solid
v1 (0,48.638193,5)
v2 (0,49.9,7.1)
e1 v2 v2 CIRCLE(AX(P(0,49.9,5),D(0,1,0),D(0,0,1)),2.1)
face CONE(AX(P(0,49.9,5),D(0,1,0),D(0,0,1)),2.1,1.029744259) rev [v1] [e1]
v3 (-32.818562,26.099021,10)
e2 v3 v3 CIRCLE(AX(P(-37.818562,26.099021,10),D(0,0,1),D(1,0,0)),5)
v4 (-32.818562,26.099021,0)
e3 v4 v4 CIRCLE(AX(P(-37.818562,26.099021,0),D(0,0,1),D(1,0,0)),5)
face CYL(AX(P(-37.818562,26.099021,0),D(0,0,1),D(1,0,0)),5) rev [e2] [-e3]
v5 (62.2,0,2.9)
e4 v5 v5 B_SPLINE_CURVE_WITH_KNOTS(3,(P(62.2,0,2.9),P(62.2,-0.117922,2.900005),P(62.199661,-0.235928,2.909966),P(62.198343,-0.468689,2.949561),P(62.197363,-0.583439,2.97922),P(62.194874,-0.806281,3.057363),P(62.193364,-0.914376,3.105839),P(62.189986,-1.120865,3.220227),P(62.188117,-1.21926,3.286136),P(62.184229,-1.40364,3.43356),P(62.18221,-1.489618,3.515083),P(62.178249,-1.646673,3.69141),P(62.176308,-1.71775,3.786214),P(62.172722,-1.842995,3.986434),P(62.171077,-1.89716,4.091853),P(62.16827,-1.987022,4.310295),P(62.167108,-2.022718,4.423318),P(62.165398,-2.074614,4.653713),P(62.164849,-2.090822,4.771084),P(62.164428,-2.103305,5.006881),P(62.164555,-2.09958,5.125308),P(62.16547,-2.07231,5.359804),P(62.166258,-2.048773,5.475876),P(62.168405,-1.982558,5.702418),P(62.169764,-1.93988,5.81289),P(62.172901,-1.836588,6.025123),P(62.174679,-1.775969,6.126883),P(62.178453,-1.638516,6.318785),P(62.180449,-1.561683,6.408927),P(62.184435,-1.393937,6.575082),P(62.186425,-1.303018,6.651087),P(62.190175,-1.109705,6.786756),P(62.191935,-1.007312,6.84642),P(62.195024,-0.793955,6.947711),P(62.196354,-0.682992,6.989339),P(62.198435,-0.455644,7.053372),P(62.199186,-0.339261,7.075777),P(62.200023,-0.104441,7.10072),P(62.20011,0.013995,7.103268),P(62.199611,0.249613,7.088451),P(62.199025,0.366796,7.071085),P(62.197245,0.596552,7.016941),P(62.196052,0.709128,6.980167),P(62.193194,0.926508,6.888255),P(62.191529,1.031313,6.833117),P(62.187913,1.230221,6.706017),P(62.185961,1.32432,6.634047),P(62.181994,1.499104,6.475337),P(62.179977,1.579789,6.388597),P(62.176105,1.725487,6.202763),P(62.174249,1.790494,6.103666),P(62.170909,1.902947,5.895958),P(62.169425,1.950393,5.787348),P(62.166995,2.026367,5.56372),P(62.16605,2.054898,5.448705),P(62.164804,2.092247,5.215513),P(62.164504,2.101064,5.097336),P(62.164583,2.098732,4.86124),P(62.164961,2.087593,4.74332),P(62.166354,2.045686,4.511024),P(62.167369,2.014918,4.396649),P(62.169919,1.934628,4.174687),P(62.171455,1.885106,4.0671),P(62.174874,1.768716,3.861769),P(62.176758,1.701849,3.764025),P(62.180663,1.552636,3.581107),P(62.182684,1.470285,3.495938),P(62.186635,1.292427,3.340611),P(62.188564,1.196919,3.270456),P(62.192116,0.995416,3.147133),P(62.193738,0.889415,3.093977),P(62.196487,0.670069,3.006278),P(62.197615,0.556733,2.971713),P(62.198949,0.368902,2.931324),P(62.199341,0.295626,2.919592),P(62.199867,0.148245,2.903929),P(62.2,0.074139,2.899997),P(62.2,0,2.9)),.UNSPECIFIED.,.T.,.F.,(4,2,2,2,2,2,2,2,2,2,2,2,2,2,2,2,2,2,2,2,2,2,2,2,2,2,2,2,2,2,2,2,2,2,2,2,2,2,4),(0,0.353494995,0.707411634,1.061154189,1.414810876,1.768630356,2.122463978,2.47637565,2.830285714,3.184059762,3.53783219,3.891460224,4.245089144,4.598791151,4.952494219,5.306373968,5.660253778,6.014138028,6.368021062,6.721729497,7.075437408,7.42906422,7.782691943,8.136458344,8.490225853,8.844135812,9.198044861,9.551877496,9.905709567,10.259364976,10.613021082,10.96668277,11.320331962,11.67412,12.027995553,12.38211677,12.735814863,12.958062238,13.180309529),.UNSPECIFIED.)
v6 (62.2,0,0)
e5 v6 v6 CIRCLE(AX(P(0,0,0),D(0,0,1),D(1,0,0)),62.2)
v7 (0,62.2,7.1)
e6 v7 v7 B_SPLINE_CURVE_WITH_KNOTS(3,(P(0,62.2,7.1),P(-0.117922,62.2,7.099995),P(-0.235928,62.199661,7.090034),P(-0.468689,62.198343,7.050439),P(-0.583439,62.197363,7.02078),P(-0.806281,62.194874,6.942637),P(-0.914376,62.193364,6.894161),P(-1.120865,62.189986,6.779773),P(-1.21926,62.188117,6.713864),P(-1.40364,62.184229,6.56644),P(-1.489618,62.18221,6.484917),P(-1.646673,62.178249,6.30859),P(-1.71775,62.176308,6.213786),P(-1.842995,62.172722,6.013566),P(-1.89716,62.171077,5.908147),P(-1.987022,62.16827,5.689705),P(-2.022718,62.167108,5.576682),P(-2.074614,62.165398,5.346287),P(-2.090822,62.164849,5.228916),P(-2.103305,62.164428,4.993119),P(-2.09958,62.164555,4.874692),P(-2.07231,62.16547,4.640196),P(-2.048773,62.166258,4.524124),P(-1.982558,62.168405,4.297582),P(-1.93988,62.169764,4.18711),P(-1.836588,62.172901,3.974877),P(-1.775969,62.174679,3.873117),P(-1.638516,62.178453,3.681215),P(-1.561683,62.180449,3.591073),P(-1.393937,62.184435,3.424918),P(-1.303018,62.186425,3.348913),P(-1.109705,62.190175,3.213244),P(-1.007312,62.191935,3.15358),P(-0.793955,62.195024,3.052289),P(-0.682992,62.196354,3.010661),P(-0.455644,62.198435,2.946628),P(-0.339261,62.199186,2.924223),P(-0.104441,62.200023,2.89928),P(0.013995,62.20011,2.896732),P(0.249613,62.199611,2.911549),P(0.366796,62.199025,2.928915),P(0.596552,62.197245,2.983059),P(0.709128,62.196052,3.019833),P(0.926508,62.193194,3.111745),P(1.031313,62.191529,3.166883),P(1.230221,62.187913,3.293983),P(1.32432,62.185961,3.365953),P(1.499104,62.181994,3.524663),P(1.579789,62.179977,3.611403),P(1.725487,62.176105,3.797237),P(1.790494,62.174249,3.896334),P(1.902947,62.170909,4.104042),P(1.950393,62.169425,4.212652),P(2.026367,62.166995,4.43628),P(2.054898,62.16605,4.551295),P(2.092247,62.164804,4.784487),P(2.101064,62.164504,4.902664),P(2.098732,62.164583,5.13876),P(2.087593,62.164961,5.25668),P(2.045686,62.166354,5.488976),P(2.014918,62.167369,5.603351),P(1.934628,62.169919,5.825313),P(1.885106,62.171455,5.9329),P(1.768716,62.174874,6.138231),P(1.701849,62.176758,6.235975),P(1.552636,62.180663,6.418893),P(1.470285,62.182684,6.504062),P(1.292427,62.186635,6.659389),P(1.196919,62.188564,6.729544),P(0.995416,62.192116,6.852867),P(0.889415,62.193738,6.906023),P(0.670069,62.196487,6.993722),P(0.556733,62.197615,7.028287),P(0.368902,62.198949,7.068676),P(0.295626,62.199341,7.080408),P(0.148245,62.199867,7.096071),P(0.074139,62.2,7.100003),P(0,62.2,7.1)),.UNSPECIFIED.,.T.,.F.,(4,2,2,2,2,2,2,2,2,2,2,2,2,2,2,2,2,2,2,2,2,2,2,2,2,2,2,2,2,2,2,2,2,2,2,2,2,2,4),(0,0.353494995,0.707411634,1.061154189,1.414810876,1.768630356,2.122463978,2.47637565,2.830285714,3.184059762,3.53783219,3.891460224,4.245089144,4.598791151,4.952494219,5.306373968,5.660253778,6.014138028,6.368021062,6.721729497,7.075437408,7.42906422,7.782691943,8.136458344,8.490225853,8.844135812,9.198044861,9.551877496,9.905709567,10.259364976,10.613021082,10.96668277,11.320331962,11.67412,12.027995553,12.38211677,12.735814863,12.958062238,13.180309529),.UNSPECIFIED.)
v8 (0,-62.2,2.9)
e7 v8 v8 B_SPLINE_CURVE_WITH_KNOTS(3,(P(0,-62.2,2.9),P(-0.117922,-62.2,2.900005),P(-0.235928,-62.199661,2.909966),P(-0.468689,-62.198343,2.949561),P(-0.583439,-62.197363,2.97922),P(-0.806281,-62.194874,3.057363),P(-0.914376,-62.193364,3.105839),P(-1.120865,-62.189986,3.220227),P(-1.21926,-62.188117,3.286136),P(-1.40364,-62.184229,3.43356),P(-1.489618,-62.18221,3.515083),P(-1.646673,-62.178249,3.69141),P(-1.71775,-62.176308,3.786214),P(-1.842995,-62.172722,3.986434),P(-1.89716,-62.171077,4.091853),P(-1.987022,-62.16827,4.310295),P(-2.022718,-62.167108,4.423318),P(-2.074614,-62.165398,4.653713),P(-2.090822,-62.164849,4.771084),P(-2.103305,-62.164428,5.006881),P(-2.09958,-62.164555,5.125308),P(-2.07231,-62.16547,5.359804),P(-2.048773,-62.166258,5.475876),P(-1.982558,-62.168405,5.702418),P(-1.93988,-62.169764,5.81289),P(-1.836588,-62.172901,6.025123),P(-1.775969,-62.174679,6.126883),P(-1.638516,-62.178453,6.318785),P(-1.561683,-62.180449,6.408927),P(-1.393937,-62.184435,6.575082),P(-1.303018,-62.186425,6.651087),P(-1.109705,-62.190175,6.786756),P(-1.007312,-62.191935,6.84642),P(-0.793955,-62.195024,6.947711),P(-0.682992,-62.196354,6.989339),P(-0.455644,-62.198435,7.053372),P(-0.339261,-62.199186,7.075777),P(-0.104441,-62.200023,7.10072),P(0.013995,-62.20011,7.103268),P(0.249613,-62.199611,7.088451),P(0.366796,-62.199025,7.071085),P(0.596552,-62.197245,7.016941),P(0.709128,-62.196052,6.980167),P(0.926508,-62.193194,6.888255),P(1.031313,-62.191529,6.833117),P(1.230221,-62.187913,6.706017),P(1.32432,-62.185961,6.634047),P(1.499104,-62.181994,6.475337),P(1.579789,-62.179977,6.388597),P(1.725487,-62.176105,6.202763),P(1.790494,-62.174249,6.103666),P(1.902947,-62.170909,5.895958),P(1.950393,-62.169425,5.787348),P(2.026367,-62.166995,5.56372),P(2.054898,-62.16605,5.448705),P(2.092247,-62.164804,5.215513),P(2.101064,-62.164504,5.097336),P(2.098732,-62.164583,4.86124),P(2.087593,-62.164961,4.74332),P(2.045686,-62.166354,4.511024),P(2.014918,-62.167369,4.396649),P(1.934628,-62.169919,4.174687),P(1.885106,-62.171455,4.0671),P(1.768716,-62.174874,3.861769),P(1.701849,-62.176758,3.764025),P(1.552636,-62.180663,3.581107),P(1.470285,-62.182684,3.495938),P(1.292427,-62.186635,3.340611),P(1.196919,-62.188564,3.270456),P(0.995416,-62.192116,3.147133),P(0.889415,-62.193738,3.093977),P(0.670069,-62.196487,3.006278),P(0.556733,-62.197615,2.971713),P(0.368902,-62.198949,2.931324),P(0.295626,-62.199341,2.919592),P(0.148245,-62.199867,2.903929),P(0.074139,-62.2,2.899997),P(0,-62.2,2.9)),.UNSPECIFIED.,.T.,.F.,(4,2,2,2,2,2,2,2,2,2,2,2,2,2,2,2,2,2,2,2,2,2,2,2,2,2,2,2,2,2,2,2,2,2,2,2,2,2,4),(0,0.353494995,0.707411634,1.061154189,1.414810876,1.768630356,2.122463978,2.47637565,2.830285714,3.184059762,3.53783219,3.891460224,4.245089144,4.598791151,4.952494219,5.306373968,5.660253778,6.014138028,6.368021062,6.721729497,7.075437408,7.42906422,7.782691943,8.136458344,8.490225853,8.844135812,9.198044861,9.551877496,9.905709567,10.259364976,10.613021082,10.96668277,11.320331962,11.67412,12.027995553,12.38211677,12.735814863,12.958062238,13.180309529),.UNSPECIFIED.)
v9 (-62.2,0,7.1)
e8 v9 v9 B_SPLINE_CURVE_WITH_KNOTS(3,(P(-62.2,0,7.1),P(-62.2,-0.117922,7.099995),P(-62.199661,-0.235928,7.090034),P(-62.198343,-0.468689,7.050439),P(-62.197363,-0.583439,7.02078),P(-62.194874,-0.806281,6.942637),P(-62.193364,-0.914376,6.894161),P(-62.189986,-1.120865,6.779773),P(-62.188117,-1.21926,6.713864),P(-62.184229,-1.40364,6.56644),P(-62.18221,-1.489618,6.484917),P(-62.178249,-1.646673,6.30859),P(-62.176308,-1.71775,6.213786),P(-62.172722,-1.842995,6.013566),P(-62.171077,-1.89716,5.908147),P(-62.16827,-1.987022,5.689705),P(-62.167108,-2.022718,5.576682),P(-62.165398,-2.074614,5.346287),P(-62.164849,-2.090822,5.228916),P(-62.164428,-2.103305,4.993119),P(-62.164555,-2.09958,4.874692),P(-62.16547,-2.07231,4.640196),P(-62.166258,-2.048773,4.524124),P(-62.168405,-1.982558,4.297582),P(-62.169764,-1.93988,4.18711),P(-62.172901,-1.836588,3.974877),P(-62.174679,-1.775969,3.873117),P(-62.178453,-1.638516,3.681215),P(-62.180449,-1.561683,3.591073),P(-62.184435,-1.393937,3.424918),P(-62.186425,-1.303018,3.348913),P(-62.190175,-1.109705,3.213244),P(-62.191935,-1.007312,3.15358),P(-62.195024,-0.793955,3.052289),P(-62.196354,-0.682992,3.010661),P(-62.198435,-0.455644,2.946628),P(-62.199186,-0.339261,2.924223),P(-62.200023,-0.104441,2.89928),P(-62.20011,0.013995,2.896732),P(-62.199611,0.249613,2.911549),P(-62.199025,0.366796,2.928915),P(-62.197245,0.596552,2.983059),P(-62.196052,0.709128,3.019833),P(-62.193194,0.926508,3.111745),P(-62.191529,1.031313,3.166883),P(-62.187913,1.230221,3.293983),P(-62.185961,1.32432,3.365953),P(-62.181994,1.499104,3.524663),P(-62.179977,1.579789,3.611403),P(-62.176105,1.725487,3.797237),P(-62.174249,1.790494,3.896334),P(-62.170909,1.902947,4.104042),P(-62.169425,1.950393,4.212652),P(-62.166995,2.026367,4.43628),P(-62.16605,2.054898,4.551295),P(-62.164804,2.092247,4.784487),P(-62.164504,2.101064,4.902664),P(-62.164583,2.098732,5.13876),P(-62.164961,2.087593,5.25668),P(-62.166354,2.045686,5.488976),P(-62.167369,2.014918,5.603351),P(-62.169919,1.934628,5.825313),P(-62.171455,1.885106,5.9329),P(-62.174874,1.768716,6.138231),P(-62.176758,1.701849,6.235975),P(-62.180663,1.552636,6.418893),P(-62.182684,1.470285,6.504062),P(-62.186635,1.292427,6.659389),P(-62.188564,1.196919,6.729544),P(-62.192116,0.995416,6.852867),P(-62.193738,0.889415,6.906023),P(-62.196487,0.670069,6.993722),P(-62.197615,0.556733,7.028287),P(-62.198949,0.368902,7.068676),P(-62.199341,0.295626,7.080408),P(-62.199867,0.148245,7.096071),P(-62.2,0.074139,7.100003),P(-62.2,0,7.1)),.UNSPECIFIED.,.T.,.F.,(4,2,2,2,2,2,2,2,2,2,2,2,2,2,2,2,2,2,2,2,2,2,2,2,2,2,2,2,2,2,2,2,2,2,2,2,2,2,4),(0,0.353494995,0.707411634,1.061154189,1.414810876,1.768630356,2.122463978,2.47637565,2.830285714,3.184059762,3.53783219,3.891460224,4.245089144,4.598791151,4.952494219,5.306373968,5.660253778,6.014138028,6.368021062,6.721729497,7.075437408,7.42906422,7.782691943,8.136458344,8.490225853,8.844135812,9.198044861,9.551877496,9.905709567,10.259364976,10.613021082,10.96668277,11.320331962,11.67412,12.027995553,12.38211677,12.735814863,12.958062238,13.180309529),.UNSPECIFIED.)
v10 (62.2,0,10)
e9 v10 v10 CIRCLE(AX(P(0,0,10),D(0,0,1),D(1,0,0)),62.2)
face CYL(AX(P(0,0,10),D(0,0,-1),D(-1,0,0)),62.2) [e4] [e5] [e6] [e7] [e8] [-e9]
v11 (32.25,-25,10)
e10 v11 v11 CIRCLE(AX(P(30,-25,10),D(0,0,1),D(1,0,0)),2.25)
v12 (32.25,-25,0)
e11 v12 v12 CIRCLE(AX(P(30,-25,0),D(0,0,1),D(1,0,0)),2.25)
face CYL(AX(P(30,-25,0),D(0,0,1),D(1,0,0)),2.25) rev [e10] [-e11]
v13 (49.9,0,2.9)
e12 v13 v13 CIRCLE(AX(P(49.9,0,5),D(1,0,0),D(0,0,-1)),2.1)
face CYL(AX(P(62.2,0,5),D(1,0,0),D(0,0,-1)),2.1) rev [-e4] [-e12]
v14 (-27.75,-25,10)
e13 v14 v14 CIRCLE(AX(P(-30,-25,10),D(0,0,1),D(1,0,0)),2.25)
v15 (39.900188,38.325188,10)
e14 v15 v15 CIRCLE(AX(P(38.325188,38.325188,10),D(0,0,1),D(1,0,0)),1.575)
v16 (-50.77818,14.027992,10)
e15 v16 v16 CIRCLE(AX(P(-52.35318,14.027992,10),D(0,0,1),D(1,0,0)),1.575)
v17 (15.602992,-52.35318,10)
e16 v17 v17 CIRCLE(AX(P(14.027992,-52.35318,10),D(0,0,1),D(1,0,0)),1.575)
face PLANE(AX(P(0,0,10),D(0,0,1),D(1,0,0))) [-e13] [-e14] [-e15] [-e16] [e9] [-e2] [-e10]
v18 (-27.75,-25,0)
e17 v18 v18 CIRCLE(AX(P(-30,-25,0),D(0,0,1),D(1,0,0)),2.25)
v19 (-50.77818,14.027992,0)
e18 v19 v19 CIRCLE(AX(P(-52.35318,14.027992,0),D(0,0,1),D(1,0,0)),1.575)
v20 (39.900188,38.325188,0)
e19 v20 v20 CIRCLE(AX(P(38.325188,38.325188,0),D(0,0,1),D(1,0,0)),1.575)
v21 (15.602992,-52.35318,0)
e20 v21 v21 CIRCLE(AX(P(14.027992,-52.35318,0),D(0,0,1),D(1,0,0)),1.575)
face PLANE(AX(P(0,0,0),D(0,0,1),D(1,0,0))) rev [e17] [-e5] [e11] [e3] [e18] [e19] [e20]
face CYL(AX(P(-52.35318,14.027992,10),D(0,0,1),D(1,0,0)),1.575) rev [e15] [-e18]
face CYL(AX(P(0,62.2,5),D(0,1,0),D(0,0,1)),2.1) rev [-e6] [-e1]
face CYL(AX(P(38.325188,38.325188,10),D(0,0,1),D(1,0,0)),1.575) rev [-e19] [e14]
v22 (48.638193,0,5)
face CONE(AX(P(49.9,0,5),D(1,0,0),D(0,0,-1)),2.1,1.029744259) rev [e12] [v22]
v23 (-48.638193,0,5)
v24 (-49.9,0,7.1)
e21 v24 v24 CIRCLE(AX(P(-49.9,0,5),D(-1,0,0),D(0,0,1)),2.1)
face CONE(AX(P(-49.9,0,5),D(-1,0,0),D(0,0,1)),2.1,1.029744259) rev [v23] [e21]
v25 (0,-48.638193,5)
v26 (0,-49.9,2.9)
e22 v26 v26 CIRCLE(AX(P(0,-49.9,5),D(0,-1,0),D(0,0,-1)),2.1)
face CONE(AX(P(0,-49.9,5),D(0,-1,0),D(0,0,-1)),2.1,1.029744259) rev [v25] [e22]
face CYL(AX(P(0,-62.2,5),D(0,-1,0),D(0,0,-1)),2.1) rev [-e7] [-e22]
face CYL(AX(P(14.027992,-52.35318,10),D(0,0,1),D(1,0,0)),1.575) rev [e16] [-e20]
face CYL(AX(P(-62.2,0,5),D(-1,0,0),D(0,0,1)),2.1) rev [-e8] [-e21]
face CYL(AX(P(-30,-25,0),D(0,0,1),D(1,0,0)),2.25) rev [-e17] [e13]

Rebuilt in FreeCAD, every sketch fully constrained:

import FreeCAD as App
import Part
import Sketcher
from FreeCAD import Vector
Q = App.Units.Quantity

doc = App.newDocument("Part")
body = doc.addObject("PartDesign::Body", "Body")

# Sketch on XY plane
sketch1 = body.newObject("Sketcher::SketchObject", "Sketch")
sketch1.AttachmentSupport = (doc.getObject("XY_Plane"), [""])
sketch1.MapMode = "FlatFace"
sketch1.addGeometry(Part.Circle(Vector(0, 0, 0), Vector(0, 0, 1), 62), False)
sketch1.addConstraint([
    Sketcher.Constraint("Coincident", 0, 3, -1, 1),
    Sketcher.Constraint("Diameter", 0, 124.4),
])
pad1 = body.newObject("PartDesign::Pad", "Pad")
pad1.Profile = sketch1
pad1.Length = 10

# Sketch on XY plane
sketch2 = body.newObject("Sketcher::SketchObject", "Sketch001")
sketch2.AttachmentSupport = (doc.getObject("XY_Plane"), [""])
sketch2.MapMode = "FlatFace"
sketch2.AttachmentOffset = App.Placement(Vector(0, 0, 10), App.Rotation())
sketch2.addGeometry(Part.Circle(Vector(38.3, 38.3, 0), Vector(0, 0, 1), 1.6), False)
sketch2.addConstraint([
    Sketcher.Constraint("Diameter", 0, 3.15),
    Sketcher.Constraint("DistanceX", -1, 1, 0, 3, 38.325188),
    Sketcher.Constraint("DistanceY", -1, 1, 0, 3, 38.325188),
])
doc.recompute()
hole = body.newObject("PartDesign::Hole", "Hole")
hole.Profile = sketch2
hole.ThreadType = "None"
hole.Diameter = 3.15
hole.DepthType = "ThroughAll"
doc.recompute()

polarpattern = body.newObject("PartDesign::PolarPattern", "PolarPattern")
polarpattern.Originals = [hole]
polarpattern.Axis = (doc.getObject("Z_Axis"), [""])
polarpattern.Angle = 360
polarpattern.Occurrences = 3
body.Tip = polarpattern

# Sketch on XY plane
sketch3 = body.newObject("Sketcher::SketchObject", "Sketch002")
sketch3.AttachmentSupport = (doc.getObject("XY_Plane"), [""])
sketch3.MapMode = "FlatFace"
sketch3.AttachmentOffset = App.Placement(Vector(0, 0, 10), App.Rotation())
sketch3.addGeometry(Part.Circle(Vector(-38, 26, 0), Vector(0, 0, 1), 5), False)
sketch3.addConstraint([
    Sketcher.Constraint("Diameter", 0, 10.0),
    Sketcher.Constraint("DistanceX", 0, 3, -1, 1, 37.818562),
    Sketcher.Constraint("DistanceY", -1, 1, 0, 3, 26.099021),
])
pocket1 = body.newObject("PartDesign::Pocket", "Pocket")
pocket1.Profile = sketch3
pocket1.Length = 10

# Sketch on XY plane
sketch4 = body.newObject("Sketcher::SketchObject", "Sketch003")
sketch4.AttachmentSupport = (doc.getObject("XY_Plane"), [""])
sketch4.MapMode = "FlatFace"
sketch4.AttachmentOffset = App.Placement(Vector(0, 0, 10), App.Rotation())
sketch4.addGeometry([
    Part.Circle(Vector(30, -25, 0), Vector(0, 0, 1), 2.2),
    Part.Circle(Vector(-30, -25, 0), Vector(0, 0, 1), 2.2),
], False)
sketch4.addConstraint([
    Sketcher.Constraint("Equal", 0, 1),
    Sketcher.Constraint("Symmetric", 0, 3, 1, 3, -2),
    Sketcher.Constraint("Diameter", 0, 4.5),
    Sketcher.Constraint("DistanceX", -1, 1, 0, 3, 30.0),
    Sketcher.Constraint("DistanceY", 0, 3, -1, 1, 25.0),
])
pocket2 = body.newObject("PartDesign::Pocket", "Pocket001")
pocket2.Profile = sketch4
pocket2.Length = 10

# Sketch on YZ plane
sketch5 = body.newObject("Sketcher::SketchObject", "Sketch004")
sketch5.AttachmentSupport = (doc.getObject("YZ_Plane"), [""])
sketch5.MapMode = "FlatFace"
sketch5.addGeometry([
    Part.LineSegment(Vector(48.6, 5, 0), Vector(62.2, 5, 0)),
    Part.LineSegment(Vector(62.2, 5, 0), Vector(62.2, 7.1, 0)),
    Part.LineSegment(Vector(62.2, 7.1, 0), Vector(49.9, 7.1, 0)),
    Part.LineSegment(Vector(49.9, 7.1, 0), Vector(48.6, 5, 0)),
], False)
sketch5.addGeometry(Part.LineSegment(Vector(62.2, 5, 0), Vector(48.6, 5, 0)), True)  # axis
sketch5.addConstraint([
    Sketcher.Constraint("Coincident", 0, 2, 1, 1),
    Sketcher.Constraint("Coincident", 1, 2, 2, 1),
    Sketcher.Constraint("Coincident", 2, 2, 3, 1),
    Sketcher.Constraint("Coincident", 3, 2, 0, 1),
    Sketcher.Constraint("Horizontal", 0),
    Sketcher.Constraint("Vertical", 1),
    Sketcher.Constraint("Horizontal", 2),
    Sketcher.Constraint("Horizontal", 4),
    Sketcher.Constraint("Coincident", 4, 1, 0, 2),
    Sketcher.Constraint("Equal", 0, 4),
    Sketcher.Constraint("Angle", 3, Q("-121 deg")),
    Sketcher.Constraint("DistanceX", 2, 2, 2, 1, 12.3),
    Sketcher.Constraint("DistanceY", 1, 1, 1, 2, 2.1),
    Sketcher.Constraint("DistanceY", -1, 1, 0, 2, 5.0),
    Sketcher.Constraint("DistanceX", -1, 1, 0, 2, 62.2),
])
groove = body.newObject("PartDesign::Groove", "Groove")
groove.Profile = sketch5
groove.ReferenceAxis = (sketch5, ["Axis0"])
groove.Angle = 360
doc.recompute()

polarpattern2 = body.newObject("PartDesign::PolarPattern", "PolarPattern001")
polarpattern2.Originals = [groove]
polarpattern2.Axis = (doc.getObject("Z_Axis"), [""])
polarpattern2.Angle = 360
polarpattern2.Occurrences = 4
body.Tip = polarpattern2

doc.recompute()
